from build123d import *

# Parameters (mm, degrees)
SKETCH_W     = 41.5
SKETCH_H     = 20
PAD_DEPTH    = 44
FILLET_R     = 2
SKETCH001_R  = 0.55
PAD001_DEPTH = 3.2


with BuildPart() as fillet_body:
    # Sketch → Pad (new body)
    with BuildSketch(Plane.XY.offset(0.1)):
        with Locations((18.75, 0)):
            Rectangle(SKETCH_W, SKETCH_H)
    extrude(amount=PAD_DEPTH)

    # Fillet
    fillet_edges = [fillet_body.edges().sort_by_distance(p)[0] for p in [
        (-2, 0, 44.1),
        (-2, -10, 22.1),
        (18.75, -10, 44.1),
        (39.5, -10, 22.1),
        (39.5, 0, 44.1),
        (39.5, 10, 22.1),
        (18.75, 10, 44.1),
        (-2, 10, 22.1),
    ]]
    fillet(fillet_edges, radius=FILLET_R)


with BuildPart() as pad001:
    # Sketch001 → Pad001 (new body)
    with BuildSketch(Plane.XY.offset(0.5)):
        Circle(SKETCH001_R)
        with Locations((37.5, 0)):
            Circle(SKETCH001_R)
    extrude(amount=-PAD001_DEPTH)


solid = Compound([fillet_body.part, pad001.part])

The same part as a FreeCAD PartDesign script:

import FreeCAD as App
import Part
import Sketcher
from FreeCAD import Vector
Q = App.Units.Quantity


def edges_at(feature, points):
    """Names of the edges that pass closest to the given points."""
    edges = feature.Shape.Edges
    near = lambda p: min(range(len(edges)), key=lambda i: edges[i].distToShape(Part.Vertex(*p))[0])
    return sorted({f"Edge{near(p) + 1}" for p in points})


def add_polygon(sketch, points):
    """Adds a closed chain of lines whose ends are joined by coincident constraints."""
    first, n = sketch.GeometryCount, len(points)
    for a, b in zip(points, points[1:] + points[:1]):
        sketch.addGeometry(Part.LineSegment(App.Vector(*a, 0), App.Vector(*b, 0)), False)
    for i in range(n):
        sketch.addConstraint(Sketcher.Constraint("Coincident", first + i, 2, first + (i + 1) % n, 1))

doc = App.newDocument("Part")
body = doc.addObject("PartDesign::Body", "Body")

# Sketch on XY plane
sketch1 = body.newObject("Sketcher::SketchObject", "Sketch")
sketch1.AttachmentSupport = (doc.getObject("XY_Plane"), [""])
sketch1.MapMode = "FlatFace"
sketch1.AttachmentOffset = App.Placement(Vector(0, 0, 0.1), App.Rotation())
add_polygon(sketch1, [(-2, 10), (-2, -10), (40, -10), (40, 10)])  # lines 0-3
sketch1.addConstraint(Sketcher.Constraint("Vertical", 0))
sketch1.addConstraint(Sketcher.Constraint("Horizontal", 1))
sketch1.addConstraint(Sketcher.Constraint("Vertical", 2))
sketch1.addConstraint(Sketcher.Constraint("Horizontal", 3))
sketch1.addConstraint(Sketcher.Constraint("DistanceY", 0, 2, 0, 1, Q("20 mm")))
sketch1.addConstraint(Sketcher.Constraint("DistanceX", 1, 1, 1, 2, Q("41.5 mm")))
sketch1.addConstraint(Sketcher.Constraint("DistanceX", 0, 2, -1, 1, Q("2 mm")))
sketch1.addConstraint(Sketcher.Constraint("DistanceY", 0, 2, -1, 1, Q("10 mm")))
pad1 = body.newObject("PartDesign::Pad", "Pad")
pad1.Profile = sketch1
pad1.Length = 44
doc.recompute()

fillet = body.newObject("PartDesign::Fillet", "Fillet")
fillet.Base = (pad1, edges_at(pad1, [
    (-2, 0, 44.1),
    (-2, -10, 22.1),
    (18.75, -10, 44.1),
    (39.5, -10, 22.1),
    (39.5, 0, 44.1),
    (39.5, 10, 22.1),
    (18.75, 10, 44.1),
    (-2, 10, 22.1),
]))
fillet.Radius = 2
body2 = doc.addObject("PartDesign::Body", "Body001")
body2.AllowCompound = True

# Sketch on XY plane
sketch2 = body2.newObject("Sketcher::SketchObject", "Sketch001")
sketch2.AttachmentSupport = (doc.getObject("XY_Plane001"), [""])
sketch2.MapMode = "FlatFace"
sketch2.AttachmentOffset = App.Placement(Vector(0, 0, 0.5), App.Rotation())
sketch2.addGeometry(Part.Circle(Vector(0, 0, 0), Vector(0, 0, 1), 0.6), False)
sketch2.addGeometry(Part.Circle(Vector(37.5, 0, 0), Vector(0, 0, 1), 0.6), False)
sketch2.addConstraint(Sketcher.Constraint("Coincident", 0, 3, -1, 1))
sketch2.addConstraint(Sketcher.Constraint("Equal", 0, 1))
sketch2.addConstraint(Sketcher.Constraint("PointOnObject", 1, 3, -1))
sketch2.addConstraint(Sketcher.Constraint("Diameter", 0, Q("1.1 mm")))
sketch2.addConstraint(Sketcher.Constraint("DistanceX", -1, 1, 1, 3, Q("37.5 mm")))
pad2 = body2.newObject("PartDesign::Pad", "Pad001")
pad2.Profile = sketch2
pad2.Length = 3.2
pad2.Reversed = True

doc.recompute()
